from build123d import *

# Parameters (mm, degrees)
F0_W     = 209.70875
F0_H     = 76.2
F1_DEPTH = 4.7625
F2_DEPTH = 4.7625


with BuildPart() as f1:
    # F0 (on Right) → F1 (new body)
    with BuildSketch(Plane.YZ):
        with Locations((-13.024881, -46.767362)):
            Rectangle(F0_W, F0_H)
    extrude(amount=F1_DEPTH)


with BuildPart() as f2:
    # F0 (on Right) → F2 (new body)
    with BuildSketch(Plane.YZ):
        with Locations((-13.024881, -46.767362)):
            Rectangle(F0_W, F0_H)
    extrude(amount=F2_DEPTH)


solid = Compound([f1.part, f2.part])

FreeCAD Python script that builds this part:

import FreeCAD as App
import Part
import Sketcher

V = App.Vector
Q = App.Units.Quantity

doc = App.newDocument("Part")
params = doc.addObject("Spreadsheet::Sheet", "Params")
for row, (alias, value) in enumerate([
    ("sketch1_height", "3 in"),
    ("pad1_length", "0.1875 in"),
    ("sketch2_height", "3 in"),
    ("pad2_length", "0.1875 in"),
], start=1):
    params.set(f"A{row}", alias)
    params.set(f"B{row}", "=" + value)
    params.setAlias(f"B{row}", alias)

body = doc.addObject("PartDesign::Body", "Body")

# Sketch on YZ plane
sketch1 = body.newObject("Sketcher::SketchObject", "Sketch")
sketch1.AttachmentSupport = (doc.getObject("YZ_Plane"), [""])
sketch1.MapMode = "FlatFace"
sketch1.addGeometry([
    Part.LineSegment(V(-117.879256, -8.667362, 0), V(-117.879256, -84.867362, 0)),
    Part.LineSegment(V(-117.879256, -84.867362, 0), V(91.829494, -84.867362, 0)),
    Part.LineSegment(V(91.829494, -84.867362, 0), V(91.829494, -8.667362, 0)),
    Part.LineSegment(V(91.829494, -8.667362, 0), V(-117.879256, -8.667362, 0)),
], False)
sketch1.addConstraint([
    Sketcher.Constraint("Coincident", 0, 2, 1, 1),
    Sketcher.Constraint("Coincident", 1, 2, 2, 1),
    Sketcher.Constraint("Coincident", 2, 2, 3, 1),
    Sketcher.Constraint("Coincident", 3, 2, 0, 1),
    Sketcher.Constraint("Vertical", 0),
    Sketcher.Constraint("Horizontal", 1),
    Sketcher.Constraint("Vertical", 2),
    Sketcher.Constraint("Horizontal", 3),
    Sketcher.Constraint("DistanceY", 0, 2, 0, 1, Q("3 in")),
    Sketcher.Constraint("DistanceX", 1, 1, 1, 2, Q("209.70875 mm")),
    Sketcher.Constraint("DistanceY", 0, 2, -1, 1, Q("84.867362 mm")),
    Sketcher.Constraint("DistanceX", 0, 2, -1, 1, Q("117.879256 mm")),
])
sketch1.setExpression("Constraints[8]", "Params.sketch1_height")
pad1 = body.newObject("PartDesign::Pad", "Pad")
pad1.Profile = sketch1
pad1.setExpression("Length", "Params.pad1_length")
body2 = doc.addObject("PartDesign::Body", "Body001")

# Sketch on YZ plane
sketch2 = body2.newObject("Sketcher::SketchObject", "Sketch001")
sketch2.AttachmentSupport = (doc.getObject("YZ_Plane001"), [""])
sketch2.MapMode = "FlatFace"
sketch2.addGeometry([
    Part.LineSegment(V(-117.879256, -8.667362, 0), V(-117.879256, -84.867362, 0)),
    Part.LineSegment(V(-117.879256, -84.867362, 0), V(91.829494, -84.867362, 0)),
    Part.LineSegment(V(91.829494, -84.867362, 0), V(91.829494, -8.667362, 0)),
    Part.LineSegment(V(91.829494, -8.667362, 0), V(-117.879256, -8.667362, 0)),
], False)
sketch2.addConstraint([
    Sketcher.Constraint("Coincident", 0, 2, 1, 1),
    Sketcher.Constraint("Coincident", 1, 2, 2, 1),
    Sketcher.Constraint("Coincident", 2, 2, 3, 1),
    Sketcher.Constraint("Coincident", 3, 2, 0, 1),
    Sketcher.Constraint("Vertical", 0),
    Sketcher.Constraint("Horizontal", 1),
    Sketcher.Constraint("Vertical", 2),
    Sketcher.Constraint("Horizontal", 3),
    Sketcher.Constraint("DistanceY", 0, 2, 0, 1, Q("3 in")),
    Sketcher.Constraint("DistanceX", 1, 1, 1, 2, Q("209.70875 mm")),
    Sketcher.Constraint("DistanceY", 0, 2, -1, 1, Q("84.867362 mm")),
    Sketcher.Constraint("DistanceX", 0, 2, -1, 1, Q("117.879256 mm")),
])
sketch2.setExpression("Constraints[8]", "Params.sketch2_height")
pad2 = body2.newObject("PartDesign::Pad", "Pad001")
pad2.Profile = sketch2
pad2.setExpression("Length", "Params.pad2_length")

doc.recompute()
